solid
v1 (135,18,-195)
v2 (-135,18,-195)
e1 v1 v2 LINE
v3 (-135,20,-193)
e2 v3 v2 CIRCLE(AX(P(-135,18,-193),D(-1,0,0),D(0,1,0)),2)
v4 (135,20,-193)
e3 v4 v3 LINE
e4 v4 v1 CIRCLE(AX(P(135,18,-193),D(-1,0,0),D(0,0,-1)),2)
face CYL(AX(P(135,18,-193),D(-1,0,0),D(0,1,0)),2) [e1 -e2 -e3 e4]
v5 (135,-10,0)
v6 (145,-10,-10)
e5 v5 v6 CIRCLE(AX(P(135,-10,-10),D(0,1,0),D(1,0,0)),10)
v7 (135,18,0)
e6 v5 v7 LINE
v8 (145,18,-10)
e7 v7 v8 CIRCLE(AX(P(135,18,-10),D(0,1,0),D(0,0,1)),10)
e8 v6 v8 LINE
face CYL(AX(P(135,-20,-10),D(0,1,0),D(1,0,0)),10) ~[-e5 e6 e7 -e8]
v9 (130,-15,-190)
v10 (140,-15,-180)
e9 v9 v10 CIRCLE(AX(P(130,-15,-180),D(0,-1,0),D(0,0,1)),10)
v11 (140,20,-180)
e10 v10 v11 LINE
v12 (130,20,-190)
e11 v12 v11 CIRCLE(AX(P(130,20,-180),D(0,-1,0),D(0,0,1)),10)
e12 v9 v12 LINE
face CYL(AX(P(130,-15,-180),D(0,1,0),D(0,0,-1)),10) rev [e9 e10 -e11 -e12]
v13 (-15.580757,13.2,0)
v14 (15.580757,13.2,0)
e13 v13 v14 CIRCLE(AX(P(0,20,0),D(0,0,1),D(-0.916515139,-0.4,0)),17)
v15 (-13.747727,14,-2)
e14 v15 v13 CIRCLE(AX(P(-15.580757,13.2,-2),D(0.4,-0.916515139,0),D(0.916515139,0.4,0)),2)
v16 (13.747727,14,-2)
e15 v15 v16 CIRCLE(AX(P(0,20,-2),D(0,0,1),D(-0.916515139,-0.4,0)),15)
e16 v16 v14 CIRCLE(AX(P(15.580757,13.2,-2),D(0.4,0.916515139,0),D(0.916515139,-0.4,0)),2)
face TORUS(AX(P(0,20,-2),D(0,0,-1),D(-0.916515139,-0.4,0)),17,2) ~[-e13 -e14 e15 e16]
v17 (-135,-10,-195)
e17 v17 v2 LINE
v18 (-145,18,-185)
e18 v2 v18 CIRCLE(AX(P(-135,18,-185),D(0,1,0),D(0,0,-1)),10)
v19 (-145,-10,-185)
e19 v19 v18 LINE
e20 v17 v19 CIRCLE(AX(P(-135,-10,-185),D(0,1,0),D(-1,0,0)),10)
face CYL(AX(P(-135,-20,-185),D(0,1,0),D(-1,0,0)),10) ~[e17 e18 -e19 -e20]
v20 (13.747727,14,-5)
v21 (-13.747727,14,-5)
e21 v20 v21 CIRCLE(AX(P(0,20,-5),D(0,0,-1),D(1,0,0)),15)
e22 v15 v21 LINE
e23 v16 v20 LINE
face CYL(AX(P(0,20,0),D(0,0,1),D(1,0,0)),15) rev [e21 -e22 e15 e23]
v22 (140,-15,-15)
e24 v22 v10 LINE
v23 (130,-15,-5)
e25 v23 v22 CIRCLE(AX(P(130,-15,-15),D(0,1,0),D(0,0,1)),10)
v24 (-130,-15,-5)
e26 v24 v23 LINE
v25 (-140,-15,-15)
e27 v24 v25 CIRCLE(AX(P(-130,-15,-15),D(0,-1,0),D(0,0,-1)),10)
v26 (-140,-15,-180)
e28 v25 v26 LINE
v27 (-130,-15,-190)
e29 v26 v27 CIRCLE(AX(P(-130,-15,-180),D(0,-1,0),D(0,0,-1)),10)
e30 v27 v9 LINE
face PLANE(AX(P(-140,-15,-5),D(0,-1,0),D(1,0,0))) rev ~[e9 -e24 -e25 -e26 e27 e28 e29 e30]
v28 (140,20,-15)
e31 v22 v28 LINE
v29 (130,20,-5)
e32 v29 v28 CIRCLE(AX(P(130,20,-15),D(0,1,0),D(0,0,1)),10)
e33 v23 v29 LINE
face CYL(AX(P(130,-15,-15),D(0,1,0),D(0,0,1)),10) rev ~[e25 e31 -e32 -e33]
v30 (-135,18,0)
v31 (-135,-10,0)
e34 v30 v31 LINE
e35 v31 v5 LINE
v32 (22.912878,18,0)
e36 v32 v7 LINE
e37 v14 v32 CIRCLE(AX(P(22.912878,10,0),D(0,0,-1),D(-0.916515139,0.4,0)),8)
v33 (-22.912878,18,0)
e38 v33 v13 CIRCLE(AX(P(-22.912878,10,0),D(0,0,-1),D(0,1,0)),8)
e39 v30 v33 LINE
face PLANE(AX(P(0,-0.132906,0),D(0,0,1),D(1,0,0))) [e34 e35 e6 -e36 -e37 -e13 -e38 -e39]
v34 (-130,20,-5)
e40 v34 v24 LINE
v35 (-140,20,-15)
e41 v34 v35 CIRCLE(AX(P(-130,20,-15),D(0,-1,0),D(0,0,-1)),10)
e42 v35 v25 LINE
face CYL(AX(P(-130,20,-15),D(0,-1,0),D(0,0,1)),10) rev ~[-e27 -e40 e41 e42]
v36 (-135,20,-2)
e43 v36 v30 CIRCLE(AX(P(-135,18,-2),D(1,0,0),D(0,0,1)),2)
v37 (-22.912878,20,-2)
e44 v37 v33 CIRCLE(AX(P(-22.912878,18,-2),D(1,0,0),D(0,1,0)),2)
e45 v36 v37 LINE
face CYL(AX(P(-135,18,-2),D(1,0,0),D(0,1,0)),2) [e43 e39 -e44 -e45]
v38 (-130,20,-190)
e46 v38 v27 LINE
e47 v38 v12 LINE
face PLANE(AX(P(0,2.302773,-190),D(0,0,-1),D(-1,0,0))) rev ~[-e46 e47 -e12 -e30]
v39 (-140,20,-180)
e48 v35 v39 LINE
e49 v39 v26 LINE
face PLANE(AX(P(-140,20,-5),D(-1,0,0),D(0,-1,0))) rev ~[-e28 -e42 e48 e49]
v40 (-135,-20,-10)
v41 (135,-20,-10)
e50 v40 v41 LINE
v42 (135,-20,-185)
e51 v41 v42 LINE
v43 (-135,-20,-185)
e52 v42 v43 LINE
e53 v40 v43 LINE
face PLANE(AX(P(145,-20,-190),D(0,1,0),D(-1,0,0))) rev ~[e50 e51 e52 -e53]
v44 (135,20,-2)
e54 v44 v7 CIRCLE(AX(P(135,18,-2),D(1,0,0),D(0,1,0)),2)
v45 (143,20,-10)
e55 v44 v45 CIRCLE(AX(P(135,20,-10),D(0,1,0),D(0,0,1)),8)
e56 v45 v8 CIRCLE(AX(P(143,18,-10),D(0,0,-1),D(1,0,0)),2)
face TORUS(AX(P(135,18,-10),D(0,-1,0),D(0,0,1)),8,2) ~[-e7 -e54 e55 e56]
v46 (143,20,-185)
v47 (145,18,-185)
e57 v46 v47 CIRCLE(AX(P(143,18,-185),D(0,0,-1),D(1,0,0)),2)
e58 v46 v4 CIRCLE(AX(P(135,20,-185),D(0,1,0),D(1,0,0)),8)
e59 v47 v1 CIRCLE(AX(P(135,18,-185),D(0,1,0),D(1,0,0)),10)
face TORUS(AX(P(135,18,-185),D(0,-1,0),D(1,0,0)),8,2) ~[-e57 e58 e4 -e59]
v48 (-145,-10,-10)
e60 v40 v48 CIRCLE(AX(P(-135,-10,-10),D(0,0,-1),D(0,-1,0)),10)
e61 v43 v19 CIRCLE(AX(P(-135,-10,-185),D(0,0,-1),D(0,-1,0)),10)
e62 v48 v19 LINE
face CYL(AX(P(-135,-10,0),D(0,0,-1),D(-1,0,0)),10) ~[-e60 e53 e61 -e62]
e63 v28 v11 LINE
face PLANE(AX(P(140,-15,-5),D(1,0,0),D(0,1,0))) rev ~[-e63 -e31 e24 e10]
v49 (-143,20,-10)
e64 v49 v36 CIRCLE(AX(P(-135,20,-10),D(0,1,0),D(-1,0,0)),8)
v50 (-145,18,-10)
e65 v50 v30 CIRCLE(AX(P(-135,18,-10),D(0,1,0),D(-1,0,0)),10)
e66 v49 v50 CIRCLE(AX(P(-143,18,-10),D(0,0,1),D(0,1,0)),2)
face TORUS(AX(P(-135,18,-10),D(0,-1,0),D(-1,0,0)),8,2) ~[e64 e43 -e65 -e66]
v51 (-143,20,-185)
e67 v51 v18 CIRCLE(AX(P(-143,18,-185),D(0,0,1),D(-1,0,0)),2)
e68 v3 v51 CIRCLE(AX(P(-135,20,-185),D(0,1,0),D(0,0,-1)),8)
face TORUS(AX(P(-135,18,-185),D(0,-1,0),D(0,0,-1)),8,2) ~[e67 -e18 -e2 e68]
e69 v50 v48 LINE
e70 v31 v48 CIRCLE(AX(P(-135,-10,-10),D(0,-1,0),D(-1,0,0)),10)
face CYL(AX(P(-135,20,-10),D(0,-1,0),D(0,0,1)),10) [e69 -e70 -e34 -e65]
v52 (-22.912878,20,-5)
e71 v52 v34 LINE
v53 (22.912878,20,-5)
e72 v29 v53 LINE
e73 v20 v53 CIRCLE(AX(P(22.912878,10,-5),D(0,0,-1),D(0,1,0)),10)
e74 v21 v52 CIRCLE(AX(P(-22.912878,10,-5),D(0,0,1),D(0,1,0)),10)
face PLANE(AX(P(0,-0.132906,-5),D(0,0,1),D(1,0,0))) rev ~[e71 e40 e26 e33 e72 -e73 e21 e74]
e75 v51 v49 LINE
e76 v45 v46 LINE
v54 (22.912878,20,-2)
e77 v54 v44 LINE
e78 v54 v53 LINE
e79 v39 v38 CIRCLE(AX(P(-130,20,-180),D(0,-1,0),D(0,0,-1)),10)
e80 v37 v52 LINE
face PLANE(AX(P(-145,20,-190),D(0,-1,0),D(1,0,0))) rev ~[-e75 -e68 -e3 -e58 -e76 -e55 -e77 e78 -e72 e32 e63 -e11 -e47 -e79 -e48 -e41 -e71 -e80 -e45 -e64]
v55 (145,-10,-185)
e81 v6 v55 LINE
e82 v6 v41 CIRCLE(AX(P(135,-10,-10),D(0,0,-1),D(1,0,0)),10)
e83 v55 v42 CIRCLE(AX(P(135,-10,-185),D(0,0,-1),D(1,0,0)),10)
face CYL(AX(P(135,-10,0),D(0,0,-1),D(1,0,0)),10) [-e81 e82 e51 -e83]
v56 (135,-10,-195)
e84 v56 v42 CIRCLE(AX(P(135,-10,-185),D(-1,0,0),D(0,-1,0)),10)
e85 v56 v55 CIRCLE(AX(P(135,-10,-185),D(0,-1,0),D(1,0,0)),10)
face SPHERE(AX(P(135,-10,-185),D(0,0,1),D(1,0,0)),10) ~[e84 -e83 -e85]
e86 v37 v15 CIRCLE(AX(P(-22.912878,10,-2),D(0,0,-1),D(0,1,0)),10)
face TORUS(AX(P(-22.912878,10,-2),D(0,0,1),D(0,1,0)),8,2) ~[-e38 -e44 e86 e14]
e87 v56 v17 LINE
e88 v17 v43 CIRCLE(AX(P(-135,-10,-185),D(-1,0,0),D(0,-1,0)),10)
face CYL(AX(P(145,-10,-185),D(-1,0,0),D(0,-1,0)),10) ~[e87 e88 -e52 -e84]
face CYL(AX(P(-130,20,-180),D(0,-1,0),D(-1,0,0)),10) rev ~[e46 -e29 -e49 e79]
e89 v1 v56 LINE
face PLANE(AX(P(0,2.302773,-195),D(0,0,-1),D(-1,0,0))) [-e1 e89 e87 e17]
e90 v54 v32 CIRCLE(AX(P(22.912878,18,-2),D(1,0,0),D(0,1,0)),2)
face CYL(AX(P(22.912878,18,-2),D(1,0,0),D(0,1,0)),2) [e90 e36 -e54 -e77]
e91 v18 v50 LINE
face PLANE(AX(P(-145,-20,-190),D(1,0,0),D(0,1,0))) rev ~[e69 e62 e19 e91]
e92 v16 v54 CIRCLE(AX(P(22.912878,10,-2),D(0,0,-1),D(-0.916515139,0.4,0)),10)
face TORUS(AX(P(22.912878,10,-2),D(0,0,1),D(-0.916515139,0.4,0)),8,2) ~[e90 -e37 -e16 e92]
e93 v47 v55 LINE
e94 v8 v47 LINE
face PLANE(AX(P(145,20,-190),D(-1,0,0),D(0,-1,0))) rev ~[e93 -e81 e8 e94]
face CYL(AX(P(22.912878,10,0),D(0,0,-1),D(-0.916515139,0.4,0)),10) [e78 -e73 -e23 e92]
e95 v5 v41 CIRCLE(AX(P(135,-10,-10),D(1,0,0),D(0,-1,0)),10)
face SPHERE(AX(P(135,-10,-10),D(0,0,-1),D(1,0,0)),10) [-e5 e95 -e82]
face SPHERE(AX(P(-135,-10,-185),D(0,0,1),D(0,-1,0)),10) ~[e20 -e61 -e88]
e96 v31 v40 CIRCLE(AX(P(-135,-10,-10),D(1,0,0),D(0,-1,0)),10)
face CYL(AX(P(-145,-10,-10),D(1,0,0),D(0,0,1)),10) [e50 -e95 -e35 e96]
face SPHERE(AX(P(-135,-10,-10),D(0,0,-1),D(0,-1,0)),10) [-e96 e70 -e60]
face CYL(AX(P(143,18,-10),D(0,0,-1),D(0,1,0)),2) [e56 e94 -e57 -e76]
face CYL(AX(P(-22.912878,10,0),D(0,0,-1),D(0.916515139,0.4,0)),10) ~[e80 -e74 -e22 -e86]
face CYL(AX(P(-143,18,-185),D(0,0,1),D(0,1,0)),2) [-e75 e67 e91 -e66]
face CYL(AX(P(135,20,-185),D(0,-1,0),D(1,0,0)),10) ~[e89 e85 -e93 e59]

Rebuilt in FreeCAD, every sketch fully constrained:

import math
import FreeCAD as App
import Part
import Sketcher
from FreeCAD import Vector


def edges_at(feature, points):
    """Names of the edges that pass closest to the given points."""
    edges = feature.Shape.Edges
    near = lambda p: min(range(len(edges)), key=lambda i: edges[i].distToShape(Part.Vertex(*p))[0])
    return sorted({f"Edge{near(p) + 1}" for p in points})

doc = App.newDocument("Part")
body = doc.addObject("PartDesign::Body", "Body")

# Sketch on XY plane
sketch1 = body.newObject("Sketcher::SketchObject", "Sketch")
sketch1.AttachmentSupport = (doc.getObject("XY_Plane"), [""])
sketch1.MapMode = "FlatFace"
sketch1.addGeometry([
    Part.LineSegment(Vector(-145, 20, 0), Vector(-145, -20, 0)),  # 0
    Part.LineSegment(Vector(-145, -20, 0), Vector(145, -20, 0)),  # 1
    Part.LineSegment(Vector(145, -20, 0), Vector(145, 20, 0)),  # 2
    Part.LineSegment(Vector(145, 20, 0), Vector(15, 20, 0)),  # 3
    Part.ArcOfCircle(Part.Circle(Vector(0, 20, 0), Vector(0, 0, 1), 15), math.radians(180), math.radians(360)),  # 4
    Part.LineSegment(Vector(-15, 20, 0), Vector(-145, 20, 0)),  # 5
], False)
sketch1.addConstraint([
    Sketcher.Constraint("Coincident", 0, 2, 1, 1),
    Sketcher.Constraint("Coincident", 1, 2, 2, 1),
    Sketcher.Constraint("Coincident", 2, 2, 3, 1),
    Sketcher.Constraint("Coincident", 3, 2, 4, 2),
    Sketcher.Constraint("Coincident", 4, 1, 5, 1),
    Sketcher.Constraint("Coincident", 5, 2, 0, 1),
    Sketcher.Constraint("Vertical", 0),
    Sketcher.Constraint("Horizontal", 1),
    Sketcher.Constraint("Vertical", 2),
    Sketcher.Constraint("Horizontal", 3),
    Sketcher.Constraint("Horizontal", 5),
    Sketcher.Constraint("Symmetric", 0, 2, 2, 2, -1, 1),
    Sketcher.Constraint("Symmetric", 3, 2, 4, 1, -2),
    Sketcher.Constraint("Horizontal", 4, 3, 2, 2),
    Sketcher.Constraint("Radius", 4, 15.0),
    Sketcher.Constraint("DistanceX", 1, 1, 1, 2, 290.0),
    Sketcher.Constraint("DistanceY", 0, 2, 0, 1, 40.0),
])
pad1 = body.newObject("PartDesign::Pad", "Pad")
pad1.Profile = sketch1
pad1.Length = 5
pad1.Reversed = True

# Sketch on XY plane
sketch2 = body.newObject("Sketcher::SketchObject", "Sketch001")
sketch2.AttachmentSupport = (doc.getObject("XY_Plane"), [""])
sketch2.MapMode = "FlatFace"
sketch2.AttachmentOffset = App.Placement(Vector(0, 0, -5), App.Rotation())
sketch2.addGeometry([
    Part.LineSegment(Vector(140, -15, 0), Vector(140, 20, 0)),  # 0
    Part.LineSegment(Vector(140, 20, 0), Vector(145, 20, 0)),  # 1
    Part.LineSegment(Vector(145, 20, 0), Vector(145, -20, 0)),  # 2
    Part.LineSegment(Vector(145, -20, 0), Vector(-145, -20, 0)),  # 3
    Part.LineSegment(Vector(-145, -20, 0), Vector(-145, 20, 0)),  # 4
    Part.LineSegment(Vector(-145, 20, 0), Vector(-140, 20, 0)),  # 5
    Part.LineSegment(Vector(-140, 20, 0), Vector(-140, -15, 0)),  # 6
    Part.LineSegment(Vector(-140, -15, 0), Vector(140, -15, 0)),  # 7
], False)
sketch2.addConstraint([
    Sketcher.Constraint("Coincident", 0, 2, 1, 1),
    Sketcher.Constraint("Coincident", 1, 2, 2, 1),
    Sketcher.Constraint("Coincident", 2, 2, 3, 1),
    Sketcher.Constraint("Coincident", 3, 2, 4, 1),
    Sketcher.Constraint("Coincident", 4, 2, 5, 1),
    Sketcher.Constraint("Coincident", 5, 2, 6, 1),
    Sketcher.Constraint("Coincident", 6, 2, 7, 1),
    Sketcher.Constraint("Coincident", 7, 2, 0, 1),
    Sketcher.Constraint("Vertical", 0),
    Sketcher.Constraint("Horizontal", 1),
    Sketcher.Constraint("Vertical", 2),
    Sketcher.Constraint("Horizontal", 3),
    Sketcher.Constraint("Vertical", 4),
    Sketcher.Constraint("Horizontal", 5),
    Sketcher.Constraint("Vertical", 6),
    Sketcher.Constraint("Horizontal", 7),
    Sketcher.Constraint("Symmetric", 1, 2, 3, 2, -1, 1),
    Sketcher.Constraint("Symmetric", 0, 2, 5, 2, -2),
    Sketcher.Constraint("DistanceX", 1, 1, 1, 2, 5.0),
    Sketcher.Constraint("DistanceX", 3, 2, 3, 1, 290.0),
    Sketcher.Constraint("DistanceY", 0, 1, 0, 2, 35.0),
    Sketcher.Constraint("DistanceY", 2, 2, 2, 1, 40.0),
])
pad2 = body.newObject("PartDesign::Pad", "Pad001")
pad2.Profile = sketch2
pad2.Length = 185
pad2.Reversed = True

# Sketch on XY plane
sketch3 = body.newObject("Sketcher::SketchObject", "Sketch002")
sketch3.AttachmentSupport = (doc.getObject("XY_Plane"), [""])
sketch3.MapMode = "FlatFace"
sketch3.AttachmentOffset = App.Placement(Vector(0, 0, -190), App.Rotation())
sketch3.addGeometry([
    Part.LineSegment(Vector(145, 20, 0), Vector(145, -20, 0)),
    Part.LineSegment(Vector(145, -20, 0), Vector(-145, -20, 0)),
    Part.LineSegment(Vector(-145, -20, 0), Vector(-145, 20, 0)),
    Part.LineSegment(Vector(-145, 20, 0), Vector(145, 20, 0)),
], False)
sketch3.addConstraint([
    Sketcher.Constraint("Coincident", 0, 2, 1, 1),
    Sketcher.Constraint("Coincident", 1, 2, 2, 1),
    Sketcher.Constraint("Coincident", 2, 2, 3, 1),
    Sketcher.Constraint("Coincident", 3, 2, 0, 1),
    Sketcher.Constraint("Vertical", 0),
    Sketcher.Constraint("Horizontal", 1),
    Sketcher.Constraint("Vertical", 2),
    Sketcher.Constraint("Horizontal", 3),
    Sketcher.Constraint("Symmetric", 0, 2, 2, 2, -1, 1),
    Sketcher.Constraint("DistanceX", 1, 2, 1, 1, 290.0),
    Sketcher.Constraint("DistanceY", 0, 2, 0, 1, 40.0),
])
pad3 = body.newObject("PartDesign::Pad", "Pad002")
pad3.Profile = sketch3
pad3.Length = 5
pad3.Reversed = True
doc.recompute()

fillet = body.newObject("PartDesign::Fillet", "Fillet")
fillet.Base = (pad3, edges_at(pad3, [
    (145, -20, -97.5),
    (-145, -20, -97.5),
    (-15, 20, -2.5),
    (15, 20, -2.5),
    (-140, 2.5, -190),
    (140, 2.5, -190),
    (-140, 2.5, -5),
    (140, 2.5, -5),
    (145, 0, -195),
    (0, -20, -195),
    (-145, 0, -195),
    (145, 0, 0),
    (0, -20, 0),
    (-145, 0, 0),
]))
fillet.Radius = 10
doc.recompute()

fillet2 = body.newObject("PartDesign::Fillet", "Fillet001")
fillet2.Base = (fillet, edges_at(fillet, [
    (142.071, 20, -192.071),
    (-142.071, 20, -192.071),
    (142.071, 20, -2.929),
    (-142.071, 20, -2.929),
    (0, 20, -195),
    (-145, 20, -97.5),
    (145, 20, -97.5),
    (78.956, 20, 0),
    (0, 5, 0),
    (-78.956, 20, 0),
    (-17.436, 18.367, 0),
    (17.436, 18.367, 0),
]))
fillet2.Radius = 2

doc.recompute()
